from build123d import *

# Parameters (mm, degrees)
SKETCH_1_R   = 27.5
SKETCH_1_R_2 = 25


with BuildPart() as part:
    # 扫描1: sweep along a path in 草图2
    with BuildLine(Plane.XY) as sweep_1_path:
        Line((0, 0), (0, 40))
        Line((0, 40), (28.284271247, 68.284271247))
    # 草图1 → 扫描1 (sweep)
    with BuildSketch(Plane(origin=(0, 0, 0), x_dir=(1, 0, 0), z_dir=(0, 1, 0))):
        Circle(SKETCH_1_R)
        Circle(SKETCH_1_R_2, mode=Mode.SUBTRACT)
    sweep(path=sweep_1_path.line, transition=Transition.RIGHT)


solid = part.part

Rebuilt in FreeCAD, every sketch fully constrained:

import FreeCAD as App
import Part
import Sketcher
Q = App.Units.Quantity

doc = App.newDocument("Part")
body = doc.addObject("PartDesign::Body", "Body")

# Sketch on XZ plane
sketch1 = body.newObject("Sketcher::SketchObject", "Sketch")
sketch1.AttachmentSupport = (doc.getObject("XZ_Plane"), [""])
sketch1.MapMode = "FlatFace"
sketch1.addGeometry(Part.Circle(App.Vector(0, 0, 0), App.Vector(0, 0, 1), 28), False)
sketch1.addGeometry(Part.Circle(App.Vector(0, 0, 0), App.Vector(0, 0, 1), 25), False)
sketch1.addConstraint(Sketcher.Constraint("Coincident", 0, 3, -1, 1))
sketch1.addConstraint(Sketcher.Constraint("Coincident", 1, 3, -1, 1))
sketch1.addConstraint(Sketcher.Constraint("Diameter", 0, Q("55 mm")))
sketch1.addConstraint(Sketcher.Constraint("Diameter", 1, Q("50 mm")))

# Sketch on XY plane
sketch2 = body.newObject("Sketcher::SketchObject", "Sketch001")
sketch2.AttachmentSupport = (doc.getObject("XY_Plane"), [""])
sketch2.MapMode = "FlatFace"
sketch2.addGeometry(Part.LineSegment(App.Vector(0, 0, 0), App.Vector(0, 40, 0)), False)
sketch2.addGeometry(Part.LineSegment(App.Vector(0, 40, 0), App.Vector(28, 68, 0)), False)
sketch2.addConstraint(Sketcher.Constraint("Coincident", 0, 2, 1, 1))
sketch2.addConstraint(Sketcher.Constraint("Vertical", 0))
sketch2.addConstraint(Sketcher.Constraint("Coincident", 0, 1, -1, 1))
sketch2.addConstraint(Sketcher.Constraint("DistanceY", 0, 1, 0, 2, Q("40 mm")))
sketch2.addConstraint(Sketcher.Constraint("Angle", 1, Q("45 deg")))
sketch2.addConstraint(Sketcher.Constraint("Distance", 1, Q("40 mm")))
doc.recompute()

additivepipe = body.newObject("PartDesign::AdditivePipe", "AdditivePipe")
additivepipe.Profile = sketch1
additivepipe.Spine = (sketch2, ["Edge1", "Edge2"])
additivepipe.Transition = "Right corner"

doc.recompute()
